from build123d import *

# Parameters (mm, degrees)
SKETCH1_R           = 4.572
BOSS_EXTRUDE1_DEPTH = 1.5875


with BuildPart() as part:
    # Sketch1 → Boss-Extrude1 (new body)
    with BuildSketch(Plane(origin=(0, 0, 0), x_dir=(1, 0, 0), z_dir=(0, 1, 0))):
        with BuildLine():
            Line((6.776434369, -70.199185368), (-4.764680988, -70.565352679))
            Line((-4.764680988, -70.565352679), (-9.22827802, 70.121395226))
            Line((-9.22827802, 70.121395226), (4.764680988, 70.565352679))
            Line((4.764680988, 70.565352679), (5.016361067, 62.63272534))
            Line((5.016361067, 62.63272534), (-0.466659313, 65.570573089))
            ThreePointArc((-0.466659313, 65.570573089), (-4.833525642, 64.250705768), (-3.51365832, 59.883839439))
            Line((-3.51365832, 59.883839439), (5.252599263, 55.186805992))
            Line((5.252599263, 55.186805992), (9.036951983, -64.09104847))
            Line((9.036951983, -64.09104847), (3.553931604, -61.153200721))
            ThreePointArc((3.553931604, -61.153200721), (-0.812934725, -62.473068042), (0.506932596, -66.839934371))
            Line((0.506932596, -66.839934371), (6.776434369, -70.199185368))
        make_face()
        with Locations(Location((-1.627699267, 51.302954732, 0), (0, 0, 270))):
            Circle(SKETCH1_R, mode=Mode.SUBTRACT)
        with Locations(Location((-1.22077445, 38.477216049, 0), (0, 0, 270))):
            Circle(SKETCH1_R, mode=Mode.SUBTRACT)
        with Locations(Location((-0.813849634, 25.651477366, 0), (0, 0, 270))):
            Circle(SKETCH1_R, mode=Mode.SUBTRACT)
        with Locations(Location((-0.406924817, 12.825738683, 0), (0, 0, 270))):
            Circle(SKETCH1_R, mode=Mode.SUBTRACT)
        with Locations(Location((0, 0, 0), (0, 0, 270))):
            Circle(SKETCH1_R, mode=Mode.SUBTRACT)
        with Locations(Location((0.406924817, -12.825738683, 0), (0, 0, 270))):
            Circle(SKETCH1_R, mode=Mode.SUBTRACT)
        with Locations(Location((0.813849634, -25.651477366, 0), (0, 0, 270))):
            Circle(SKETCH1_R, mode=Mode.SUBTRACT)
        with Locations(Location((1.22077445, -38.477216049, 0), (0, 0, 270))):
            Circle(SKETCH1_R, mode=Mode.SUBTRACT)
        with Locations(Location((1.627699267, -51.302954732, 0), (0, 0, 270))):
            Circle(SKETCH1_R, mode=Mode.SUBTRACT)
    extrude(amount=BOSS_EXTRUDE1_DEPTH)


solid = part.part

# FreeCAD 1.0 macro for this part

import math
import FreeCAD as App
import Part
import Sketcher
from FreeCAD import Vector
Q = App.Units.Quantity

doc = App.newDocument("Part")
body = doc.addObject("PartDesign::Body", "Body")

# Sketch on XZ plane
sketch1 = body.newObject("Sketcher::SketchObject", "Sketch")
sketch1.AttachmentSupport = (doc.getObject("XZ_Plane"), [""])
sketch1.MapMode = "FlatFace"
sketch1.addGeometry([
    Part.LineSegment(Vector(-4.764681, 70.565353, 0), Vector(6.776434, 70.199185, 0)),  # 0
    Part.LineSegment(Vector(6.776434, 70.199185, 0), Vector(0.506933, 66.839934, 0)),  # 1
    Part.ArcOfCircle(Part.Circle(Vector(2.030432, 63.996568, 0), Vector(0, 0, 1), 3.2258), math.radians(118.182775), math.radians(298.182775)),  # 2
    Part.LineSegment(Vector(3.553932, 61.153201, 0), Vector(9.036952, 64.091048, 0)),  # 3
    Part.LineSegment(Vector(9.036952, 64.091048, 0), Vector(5.252599, -55.186806, 0)),  # 4
    Part.LineSegment(Vector(5.252599, -55.186806, 0), Vector(-3.513658, -59.883839, 0)),  # 5
    Part.ArcOfCircle(Part.Circle(Vector(-1.990159, -62.727206, 0), Vector(0, 0, 1), 3.2258), math.radians(118.182775), math.radians(298.182775)),  # 6
    Part.LineSegment(Vector(-0.466659, -65.570573, 0), Vector(5.016361, -62.632725, 0)),  # 7
    Part.LineSegment(Vector(5.016361, -62.632725, 0), Vector(4.764681, -70.565353, 0)),  # 8
    Part.LineSegment(Vector(4.764681, -70.565353, 0), Vector(-9.228278, -70.121395, 0)),  # 9
    Part.LineSegment(Vector(-9.228278, -70.121395, 0), Vector(-4.764681, 70.565353, 0)),  # 10
    Part.Circle(Vector(1.627699, 51.302955, 0), Vector(0, 0, 1), 4.572),  # 11
    Part.Circle(Vector(1.220774, 38.477216, 0), Vector(0, 0, 1), 4.572),  # 12
    Part.Circle(Vector(0.81385, 25.651477, 0), Vector(0, 0, 1), 4.572),  # 13
    Part.Circle(Vector(0.406925, 12.825739, 0), Vector(0, 0, 1), 4.572),  # 14
    Part.Circle(Vector(0, 0, 0), Vector(0, 0, 1), 4.572),  # 15
    Part.Circle(Vector(-0.406925, -12.825739, 0), Vector(0, 0, 1), 4.572),  # 16
    Part.Circle(Vector(-0.81385, -25.651477, 0), Vector(0, 0, 1), 4.572),  # 17
    Part.Circle(Vector(-1.220774, -38.477216, 0), Vector(0, 0, 1), 4.572),  # 18
    Part.Circle(Vector(-1.627699, -51.302955, 0), Vector(0, 0, 1), 4.572),  # 19
], False)
sketch1.addConstraint([
    Sketcher.Constraint("Coincident", 0, 2, 1, 1),
    Sketcher.Constraint("Tangent", 1, 2, 2, 1),
    Sketcher.Constraint("Tangent", 2, 2, 3, 1),
    Sketcher.Constraint("Coincident", 3, 2, 4, 1),
    Sketcher.Constraint("Coincident", 4, 2, 5, 1),
    Sketcher.Constraint("Tangent", 5, 2, 6, 1),
    Sketcher.Constraint("Tangent", 6, 2, 7, 1),
    Sketcher.Constraint("Coincident", 7, 2, 8, 1),
    Sketcher.Constraint("Coincident", 8, 2, 9, 1),
    Sketcher.Constraint("Coincident", 9, 2, 10, 1),
    Sketcher.Constraint("Coincident", 10, 2, 0, 1),
    Sketcher.Constraint("Coincident", 15, 3, -1, 1),
    Sketcher.Constraint("Equal", 2, 6),
    Sketcher.Constraint("Equal", 11, 12),
    Sketcher.Constraint("Equal", 12, 13),
    Sketcher.Constraint("Equal", 13, 14),
    Sketcher.Constraint("Equal", 14, 15),
    Sketcher.Constraint("Equal", 15, 16),
    Sketcher.Constraint("Equal", 16, 17),
    Sketcher.Constraint("Equal", 17, 18),
    Sketcher.Constraint("Equal", 18, 19),
    Sketcher.Constraint("Symmetric", 14, 3, 16, 3, -1, 1),
    Sketcher.Constraint("Symmetric", 13, 3, 17, 3, -1, 1),
    Sketcher.Constraint("Symmetric", 12, 3, 18, 3, -1, 1),
    Sketcher.Constraint("Symmetric", 11, 3, 19, 3, -1, 1),
    Sketcher.Constraint("Symmetric", 8, 2, 10, 2, -1, 1),
    Sketcher.Constraint("Parallel", 1, 3),
    Sketcher.Constraint("Perpendicular", 0, 4),
    Sketcher.Constraint("Parallel", 3, 5),
    Sketcher.Constraint("Parallel", 5, 7),
    Sketcher.Constraint("Parallel", 4, 8),
    Sketcher.Constraint("Perpendicular", 8, 9),
    Sketcher.Constraint("Perpendicular", 9, 10),
    Sketcher.Constraint("Equal", 3, 7),
    Sketcher.Constraint("Diameter", 11, Q("0.36 in")),
    Sketcher.Constraint("Radius", 2, Q("0.127 in")),
    Sketcher.Constraint("Distance", 9, Q("14 mm")),
    Sketcher.Constraint("DistanceX", -1, 1, 11, 3, Q("1.627699 mm")),
    Sketcher.Constraint("DistanceY", -1, 1, 2, 2, Q("61.153201 mm")),
    Sketcher.Constraint("DistanceX", -1, 1, 4, 2, Q("5.252599 mm")),
    Sketcher.Constraint("DistanceX", 16, 3, 12, 3, Q("1.627699 mm")),
    Sketcher.Constraint("DistanceX", 17, 3, 13, 3, Q("1.627699 mm")),
    Sketcher.Constraint("DistanceX", 1, 2, 2, 3, Q("1.5235 mm")),
    Sketcher.Constraint("DistanceX", 1, 2, 0, 2, Q("6.269502 mm")),
    Sketcher.Constraint("DistanceY", 6, 3, 4, 2, Q("7.5404 mm")),
    Sketcher.Constraint("Distance", 8, Q("7.936619 mm")),
    Sketcher.Constraint("Distance", 10, Q("140.757539 mm")),
    Sketcher.Constraint("DistanceY", -1, 1, 14, 3, Q("12.825739 mm")),
    Sketcher.Constraint("DistanceY", 6, 3, 11, 3, Q("114.030161 mm")),
    Sketcher.Constraint("DistanceY", 12, 3, 11, 3, Q("12.825739 mm")),
    Sketcher.Constraint("DistanceY", 13, 3, 12, 3, Q("12.825739 mm")),
    Sketcher.Constraint("DistanceX", 14, 3, 12, 3, Q("0.81385 mm")),
])
pad1 = body.newObject("PartDesign::Pad", "Pad")
pad1.Profile = sketch1
pad1.Length = Q("0.0625 in")
pad1.Reversed = True

doc.recompute()
